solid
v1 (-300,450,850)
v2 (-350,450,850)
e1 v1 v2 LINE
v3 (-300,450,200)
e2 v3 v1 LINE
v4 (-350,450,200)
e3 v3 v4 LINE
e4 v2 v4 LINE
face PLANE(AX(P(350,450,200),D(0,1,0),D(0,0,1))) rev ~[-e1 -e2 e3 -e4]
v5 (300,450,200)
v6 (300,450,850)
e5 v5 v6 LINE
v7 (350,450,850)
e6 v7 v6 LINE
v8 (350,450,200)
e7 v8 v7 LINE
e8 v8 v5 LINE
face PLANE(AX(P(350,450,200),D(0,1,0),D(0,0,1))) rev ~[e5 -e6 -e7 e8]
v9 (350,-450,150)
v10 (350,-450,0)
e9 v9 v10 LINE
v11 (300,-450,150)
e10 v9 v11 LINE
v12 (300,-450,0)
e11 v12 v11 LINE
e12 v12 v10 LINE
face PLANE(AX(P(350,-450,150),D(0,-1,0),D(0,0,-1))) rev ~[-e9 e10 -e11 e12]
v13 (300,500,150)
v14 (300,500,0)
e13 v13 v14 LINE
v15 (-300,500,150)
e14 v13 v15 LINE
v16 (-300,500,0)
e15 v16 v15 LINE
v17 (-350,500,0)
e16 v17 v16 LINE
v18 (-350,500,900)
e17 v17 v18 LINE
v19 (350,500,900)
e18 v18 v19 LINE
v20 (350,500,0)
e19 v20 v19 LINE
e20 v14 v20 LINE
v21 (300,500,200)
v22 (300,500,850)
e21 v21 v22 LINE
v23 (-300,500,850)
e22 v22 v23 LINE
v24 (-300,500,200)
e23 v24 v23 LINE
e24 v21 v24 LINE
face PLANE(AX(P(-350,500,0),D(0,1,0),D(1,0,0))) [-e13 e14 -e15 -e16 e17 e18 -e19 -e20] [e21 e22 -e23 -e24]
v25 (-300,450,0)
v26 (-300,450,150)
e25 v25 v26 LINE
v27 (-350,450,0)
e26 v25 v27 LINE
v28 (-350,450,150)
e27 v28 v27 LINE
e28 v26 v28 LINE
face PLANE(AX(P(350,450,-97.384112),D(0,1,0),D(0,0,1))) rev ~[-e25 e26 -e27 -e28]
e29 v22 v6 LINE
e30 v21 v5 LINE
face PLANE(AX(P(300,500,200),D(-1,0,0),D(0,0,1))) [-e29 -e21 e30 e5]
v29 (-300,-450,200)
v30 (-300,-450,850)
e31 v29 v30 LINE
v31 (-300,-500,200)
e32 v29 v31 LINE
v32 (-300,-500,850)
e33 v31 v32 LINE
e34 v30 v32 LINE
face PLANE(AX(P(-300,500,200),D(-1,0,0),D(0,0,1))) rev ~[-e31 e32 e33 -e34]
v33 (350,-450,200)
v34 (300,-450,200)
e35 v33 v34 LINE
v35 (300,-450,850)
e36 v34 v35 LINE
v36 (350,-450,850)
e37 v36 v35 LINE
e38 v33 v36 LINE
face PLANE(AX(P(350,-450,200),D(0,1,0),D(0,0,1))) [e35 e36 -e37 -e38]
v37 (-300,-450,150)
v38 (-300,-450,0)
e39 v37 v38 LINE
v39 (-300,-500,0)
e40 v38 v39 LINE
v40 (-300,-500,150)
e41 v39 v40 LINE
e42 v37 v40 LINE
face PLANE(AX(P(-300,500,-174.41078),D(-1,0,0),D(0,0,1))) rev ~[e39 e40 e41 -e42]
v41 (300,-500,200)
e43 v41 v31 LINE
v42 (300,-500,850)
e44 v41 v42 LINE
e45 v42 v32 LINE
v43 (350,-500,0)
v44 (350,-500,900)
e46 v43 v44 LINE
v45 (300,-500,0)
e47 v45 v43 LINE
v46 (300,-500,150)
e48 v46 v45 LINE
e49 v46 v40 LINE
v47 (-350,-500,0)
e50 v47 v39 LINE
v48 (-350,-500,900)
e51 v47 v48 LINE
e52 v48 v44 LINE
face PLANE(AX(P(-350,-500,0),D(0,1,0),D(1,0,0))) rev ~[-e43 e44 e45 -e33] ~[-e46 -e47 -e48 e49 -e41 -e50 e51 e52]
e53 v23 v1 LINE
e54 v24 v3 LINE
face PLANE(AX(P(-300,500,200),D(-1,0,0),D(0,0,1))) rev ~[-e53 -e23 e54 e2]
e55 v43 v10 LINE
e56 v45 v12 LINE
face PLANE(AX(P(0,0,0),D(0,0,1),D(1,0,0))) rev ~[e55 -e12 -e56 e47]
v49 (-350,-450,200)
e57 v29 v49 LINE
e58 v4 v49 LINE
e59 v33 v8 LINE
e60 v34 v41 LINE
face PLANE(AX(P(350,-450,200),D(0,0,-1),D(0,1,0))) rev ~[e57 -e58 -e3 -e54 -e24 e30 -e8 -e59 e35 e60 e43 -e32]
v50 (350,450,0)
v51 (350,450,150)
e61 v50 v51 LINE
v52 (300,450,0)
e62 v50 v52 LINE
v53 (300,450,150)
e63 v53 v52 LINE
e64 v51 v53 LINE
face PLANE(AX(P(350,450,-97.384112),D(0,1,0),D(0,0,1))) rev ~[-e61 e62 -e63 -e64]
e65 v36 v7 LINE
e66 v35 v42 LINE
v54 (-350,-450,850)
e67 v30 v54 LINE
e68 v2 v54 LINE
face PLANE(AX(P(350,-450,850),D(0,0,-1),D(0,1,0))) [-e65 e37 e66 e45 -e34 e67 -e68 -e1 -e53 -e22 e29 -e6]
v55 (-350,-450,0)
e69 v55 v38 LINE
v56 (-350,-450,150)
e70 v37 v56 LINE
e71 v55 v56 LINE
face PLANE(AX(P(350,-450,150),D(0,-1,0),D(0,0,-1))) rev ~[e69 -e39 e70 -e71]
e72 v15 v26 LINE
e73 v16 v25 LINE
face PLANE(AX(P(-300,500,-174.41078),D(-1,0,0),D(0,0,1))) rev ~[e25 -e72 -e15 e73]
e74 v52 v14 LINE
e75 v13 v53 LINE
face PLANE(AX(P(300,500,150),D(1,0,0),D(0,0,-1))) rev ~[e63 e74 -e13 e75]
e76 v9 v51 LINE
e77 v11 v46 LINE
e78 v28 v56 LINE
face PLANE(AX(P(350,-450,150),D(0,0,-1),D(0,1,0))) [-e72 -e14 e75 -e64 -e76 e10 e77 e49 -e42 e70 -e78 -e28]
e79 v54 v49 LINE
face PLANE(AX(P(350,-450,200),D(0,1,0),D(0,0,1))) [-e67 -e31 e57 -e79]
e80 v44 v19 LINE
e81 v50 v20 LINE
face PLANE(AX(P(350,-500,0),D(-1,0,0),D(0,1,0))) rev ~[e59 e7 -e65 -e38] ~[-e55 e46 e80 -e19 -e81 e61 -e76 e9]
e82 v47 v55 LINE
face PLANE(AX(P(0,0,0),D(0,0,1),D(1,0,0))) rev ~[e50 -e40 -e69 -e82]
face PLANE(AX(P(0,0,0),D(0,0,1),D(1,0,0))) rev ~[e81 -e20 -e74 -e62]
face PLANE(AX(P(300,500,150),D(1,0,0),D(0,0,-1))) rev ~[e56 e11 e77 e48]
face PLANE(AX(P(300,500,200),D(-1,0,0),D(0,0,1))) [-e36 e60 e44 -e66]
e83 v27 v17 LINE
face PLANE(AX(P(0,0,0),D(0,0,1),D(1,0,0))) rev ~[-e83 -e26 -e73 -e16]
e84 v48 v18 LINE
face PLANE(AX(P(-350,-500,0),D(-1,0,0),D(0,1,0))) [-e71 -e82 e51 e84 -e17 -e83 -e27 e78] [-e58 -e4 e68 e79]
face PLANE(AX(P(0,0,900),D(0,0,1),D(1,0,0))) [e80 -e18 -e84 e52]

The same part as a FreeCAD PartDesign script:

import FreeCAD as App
import Part
import Sketcher
from FreeCAD import Vector
Q = App.Units.Quantity


def add_polygon(sketch, points):
    """Adds a closed chain of lines whose ends are joined by coincident constraints."""
    first, n = sketch.GeometryCount, len(points)
    for a, b in zip(points, points[1:] + points[:1]):
        sketch.addGeometry(Part.LineSegment(App.Vector(*a, 0), App.Vector(*b, 0)), False)
    for i in range(n):
        sketch.addConstraint(Sketcher.Constraint("Coincident", first + i, 2, first + (i + 1) % n, 1))

doc = App.newDocument("Part")
params = doc.addObject("Spreadsheet::Sheet", "Params")
for row, (alias, value) in enumerate([
    ("sketch1_width", "700 mm"),
    ("sketch1_height", "1000 mm"),
    ("pad1_length", "900 mm"),
    ("sketch2_width", "900 mm"),
    ("sketch2_height", "650 mm"),
    ("pocket1_length", "1000 mm"),
    ("sketch3_width", "600 mm"),
    ("sketch3_height", "650 mm"),
    ("pocket2_length", "1000 mm"),
], start=1):
    params.set(f"A{row}", alias)
    params.set(f"B{row}", "=" + value)
    params.setAlias(f"B{row}", alias)

body = doc.addObject("PartDesign::Body", "Body")

# Sketch on XY plane
sketch1 = body.newObject("Sketcher::SketchObject", "Sketch")
sketch1.AttachmentSupport = (doc.getObject("XY_Plane"), [""])
sketch1.MapMode = "FlatFace"
add_polygon(sketch1, [(-350, 500), (-350, -500), (350, -500), (350, 500)])  # lines 0-3
sketch1.addConstraint(Sketcher.Constraint("Vertical", 0))
sketch1.addConstraint(Sketcher.Constraint("Horizontal", 1))
sketch1.addConstraint(Sketcher.Constraint("Vertical", 2))
sketch1.addConstraint(Sketcher.Constraint("Horizontal", 3))
sketch1.addConstraint(Sketcher.Constraint("Symmetric", 0, 2, 2, 2, -1, 1))
sketch1.addConstraint(Sketcher.Constraint("DistanceX", 1, 1, 1, 2, Q("700 mm")))
sketch1.addConstraint(Sketcher.Constraint("DistanceY", 0, 2, 0, 1, Q("1000 mm")))
sketch1.setExpression("Constraints[9]", "Params.sketch1_width")
sketch1.setExpression("Constraints[10]", "Params.sketch1_height")
pad1 = body.newObject("PartDesign::Pad", "Pad")
pad1.Profile = sketch1
pad1.setExpression("Length", "Params.pad1_length")

# Sketch on YZ plane
sketch2 = body.newObject("Sketcher::SketchObject", "Sketch001")
sketch2.AttachmentSupport = (doc.getObject("YZ_Plane"), [""])
sketch2.MapMode = "FlatFace"
sketch2.AttachmentOffset = App.Placement(Vector(0, 0, 350), App.Rotation())
add_polygon(sketch2, [(-450, -97), (450, -97), (450, 150), (-450, 150)])  # lines 0-3
add_polygon(sketch2, [(-450, 850), (-450, 200), (450, 200), (450, 850)])  # lines 4-7
sketch2.addConstraint(Sketcher.Constraint("Horizontal", 0))
sketch2.addConstraint(Sketcher.Constraint("Vertical", 1))
sketch2.addConstraint(Sketcher.Constraint("Horizontal", 2))
sketch2.addConstraint(Sketcher.Constraint("Vertical", 3))
sketch2.addConstraint(Sketcher.Constraint("Vertical", 4))
sketch2.addConstraint(Sketcher.Constraint("Horizontal", 5))
sketch2.addConstraint(Sketcher.Constraint("Vertical", 6))
sketch2.addConstraint(Sketcher.Constraint("Horizontal", 7))
sketch2.addConstraint(Sketcher.Constraint("Vertical", 3, 2, 4, 2))
sketch2.addConstraint(Sketcher.Constraint("Vertical", 1, 2, 5, 2))
sketch2.addConstraint(Sketcher.Constraint("DistanceX", 0, 1, 0, 2, Q("900 mm")))
sketch2.addConstraint(Sketcher.Constraint("DistanceY", 4, 2, 4, 1, Q("650 mm")))
sketch2.addConstraint(Sketcher.Constraint("DistanceX", -1, 1, 0, 2, Q("450 mm")))
sketch2.addConstraint(Sketcher.Constraint("DistanceY", -1, 1, 1, 2, Q("150 mm")))
sketch2.addConstraint(Sketcher.Constraint("DistanceY", -1, 1, 4, 2, Q("200 mm")))
sketch2.addConstraint(Sketcher.Constraint("DistanceY", 1, 1, 1, 2, Q("247.384112 mm")))
sketch2.setExpression("Constraints[18]", "Params.sketch2_width")
sketch2.setExpression("Constraints[19]", "Params.sketch2_height")
pocket1 = body.newObject("PartDesign::Pocket", "Pocket")
pocket1.Profile = sketch2
pocket1.setExpression("Length", "Params.pocket1_length")

# Sketch on XZ plane
sketch3 = body.newObject("Sketcher::SketchObject", "Sketch002")
sketch3.AttachmentSupport = (doc.getObject("XZ_Plane"), [""])
sketch3.MapMode = "FlatFace"
sketch3.AttachmentOffset = App.Placement(Vector(0, 0, -500), App.Rotation())
add_polygon(sketch3, [(300, -174), (-300, -174), (-300, 150), (300, 150)])  # lines 0-3
add_polygon(sketch3, [(300, 850), (300, 200), (-300, 200), (-300, 850)])  # lines 4-7
sketch3.addConstraint(Sketcher.Constraint("Horizontal", 0))
sketch3.addConstraint(Sketcher.Constraint("Vertical", 1))
sketch3.addConstraint(Sketcher.Constraint("Horizontal", 2))
sketch3.addConstraint(Sketcher.Constraint("Vertical", 3))
sketch3.addConstraint(Sketcher.Constraint("Vertical", 4))
sketch3.addConstraint(Sketcher.Constraint("Horizontal", 5))
sketch3.addConstraint(Sketcher.Constraint("Vertical", 6))
sketch3.addConstraint(Sketcher.Constraint("Horizontal", 7))
sketch3.addConstraint(Sketcher.Constraint("Vertical", 3, 2, 4, 2))
sketch3.addConstraint(Sketcher.Constraint("Vertical", 1, 2, 5, 2))
sketch3.addConstraint(Sketcher.Constraint("DistanceX", 0, 2, 0, 1, Q("600 mm")))
sketch3.addConstraint(Sketcher.Constraint("DistanceY", 4, 2, 4, 1, Q("650 mm")))
sketch3.addConstraint(Sketcher.Constraint("DistanceX", 0, 2, -1, 1, Q("300 mm")))
sketch3.addConstraint(Sketcher.Constraint("DistanceY", -1, 1, 1, 2, Q("150 mm")))
sketch3.addConstraint(Sketcher.Constraint("DistanceY", -1, 1, 4, 2, Q("200 mm")))
sketch3.addConstraint(Sketcher.Constraint("DistanceY", 1, 1, 1, 2, Q("324.41078 mm")))
sketch3.setExpression("Constraints[18]", "Params.sketch3_width")
sketch3.setExpression("Constraints[19]", "Params.sketch3_height")
pocket2 = body.newObject("PartDesign::Pocket", "Pocket001")
pocket2.Profile = sketch3
pocket2.setExpression("Length", "Params.pocket2_length")
pocket2.Reversed = True

doc.recompute()
